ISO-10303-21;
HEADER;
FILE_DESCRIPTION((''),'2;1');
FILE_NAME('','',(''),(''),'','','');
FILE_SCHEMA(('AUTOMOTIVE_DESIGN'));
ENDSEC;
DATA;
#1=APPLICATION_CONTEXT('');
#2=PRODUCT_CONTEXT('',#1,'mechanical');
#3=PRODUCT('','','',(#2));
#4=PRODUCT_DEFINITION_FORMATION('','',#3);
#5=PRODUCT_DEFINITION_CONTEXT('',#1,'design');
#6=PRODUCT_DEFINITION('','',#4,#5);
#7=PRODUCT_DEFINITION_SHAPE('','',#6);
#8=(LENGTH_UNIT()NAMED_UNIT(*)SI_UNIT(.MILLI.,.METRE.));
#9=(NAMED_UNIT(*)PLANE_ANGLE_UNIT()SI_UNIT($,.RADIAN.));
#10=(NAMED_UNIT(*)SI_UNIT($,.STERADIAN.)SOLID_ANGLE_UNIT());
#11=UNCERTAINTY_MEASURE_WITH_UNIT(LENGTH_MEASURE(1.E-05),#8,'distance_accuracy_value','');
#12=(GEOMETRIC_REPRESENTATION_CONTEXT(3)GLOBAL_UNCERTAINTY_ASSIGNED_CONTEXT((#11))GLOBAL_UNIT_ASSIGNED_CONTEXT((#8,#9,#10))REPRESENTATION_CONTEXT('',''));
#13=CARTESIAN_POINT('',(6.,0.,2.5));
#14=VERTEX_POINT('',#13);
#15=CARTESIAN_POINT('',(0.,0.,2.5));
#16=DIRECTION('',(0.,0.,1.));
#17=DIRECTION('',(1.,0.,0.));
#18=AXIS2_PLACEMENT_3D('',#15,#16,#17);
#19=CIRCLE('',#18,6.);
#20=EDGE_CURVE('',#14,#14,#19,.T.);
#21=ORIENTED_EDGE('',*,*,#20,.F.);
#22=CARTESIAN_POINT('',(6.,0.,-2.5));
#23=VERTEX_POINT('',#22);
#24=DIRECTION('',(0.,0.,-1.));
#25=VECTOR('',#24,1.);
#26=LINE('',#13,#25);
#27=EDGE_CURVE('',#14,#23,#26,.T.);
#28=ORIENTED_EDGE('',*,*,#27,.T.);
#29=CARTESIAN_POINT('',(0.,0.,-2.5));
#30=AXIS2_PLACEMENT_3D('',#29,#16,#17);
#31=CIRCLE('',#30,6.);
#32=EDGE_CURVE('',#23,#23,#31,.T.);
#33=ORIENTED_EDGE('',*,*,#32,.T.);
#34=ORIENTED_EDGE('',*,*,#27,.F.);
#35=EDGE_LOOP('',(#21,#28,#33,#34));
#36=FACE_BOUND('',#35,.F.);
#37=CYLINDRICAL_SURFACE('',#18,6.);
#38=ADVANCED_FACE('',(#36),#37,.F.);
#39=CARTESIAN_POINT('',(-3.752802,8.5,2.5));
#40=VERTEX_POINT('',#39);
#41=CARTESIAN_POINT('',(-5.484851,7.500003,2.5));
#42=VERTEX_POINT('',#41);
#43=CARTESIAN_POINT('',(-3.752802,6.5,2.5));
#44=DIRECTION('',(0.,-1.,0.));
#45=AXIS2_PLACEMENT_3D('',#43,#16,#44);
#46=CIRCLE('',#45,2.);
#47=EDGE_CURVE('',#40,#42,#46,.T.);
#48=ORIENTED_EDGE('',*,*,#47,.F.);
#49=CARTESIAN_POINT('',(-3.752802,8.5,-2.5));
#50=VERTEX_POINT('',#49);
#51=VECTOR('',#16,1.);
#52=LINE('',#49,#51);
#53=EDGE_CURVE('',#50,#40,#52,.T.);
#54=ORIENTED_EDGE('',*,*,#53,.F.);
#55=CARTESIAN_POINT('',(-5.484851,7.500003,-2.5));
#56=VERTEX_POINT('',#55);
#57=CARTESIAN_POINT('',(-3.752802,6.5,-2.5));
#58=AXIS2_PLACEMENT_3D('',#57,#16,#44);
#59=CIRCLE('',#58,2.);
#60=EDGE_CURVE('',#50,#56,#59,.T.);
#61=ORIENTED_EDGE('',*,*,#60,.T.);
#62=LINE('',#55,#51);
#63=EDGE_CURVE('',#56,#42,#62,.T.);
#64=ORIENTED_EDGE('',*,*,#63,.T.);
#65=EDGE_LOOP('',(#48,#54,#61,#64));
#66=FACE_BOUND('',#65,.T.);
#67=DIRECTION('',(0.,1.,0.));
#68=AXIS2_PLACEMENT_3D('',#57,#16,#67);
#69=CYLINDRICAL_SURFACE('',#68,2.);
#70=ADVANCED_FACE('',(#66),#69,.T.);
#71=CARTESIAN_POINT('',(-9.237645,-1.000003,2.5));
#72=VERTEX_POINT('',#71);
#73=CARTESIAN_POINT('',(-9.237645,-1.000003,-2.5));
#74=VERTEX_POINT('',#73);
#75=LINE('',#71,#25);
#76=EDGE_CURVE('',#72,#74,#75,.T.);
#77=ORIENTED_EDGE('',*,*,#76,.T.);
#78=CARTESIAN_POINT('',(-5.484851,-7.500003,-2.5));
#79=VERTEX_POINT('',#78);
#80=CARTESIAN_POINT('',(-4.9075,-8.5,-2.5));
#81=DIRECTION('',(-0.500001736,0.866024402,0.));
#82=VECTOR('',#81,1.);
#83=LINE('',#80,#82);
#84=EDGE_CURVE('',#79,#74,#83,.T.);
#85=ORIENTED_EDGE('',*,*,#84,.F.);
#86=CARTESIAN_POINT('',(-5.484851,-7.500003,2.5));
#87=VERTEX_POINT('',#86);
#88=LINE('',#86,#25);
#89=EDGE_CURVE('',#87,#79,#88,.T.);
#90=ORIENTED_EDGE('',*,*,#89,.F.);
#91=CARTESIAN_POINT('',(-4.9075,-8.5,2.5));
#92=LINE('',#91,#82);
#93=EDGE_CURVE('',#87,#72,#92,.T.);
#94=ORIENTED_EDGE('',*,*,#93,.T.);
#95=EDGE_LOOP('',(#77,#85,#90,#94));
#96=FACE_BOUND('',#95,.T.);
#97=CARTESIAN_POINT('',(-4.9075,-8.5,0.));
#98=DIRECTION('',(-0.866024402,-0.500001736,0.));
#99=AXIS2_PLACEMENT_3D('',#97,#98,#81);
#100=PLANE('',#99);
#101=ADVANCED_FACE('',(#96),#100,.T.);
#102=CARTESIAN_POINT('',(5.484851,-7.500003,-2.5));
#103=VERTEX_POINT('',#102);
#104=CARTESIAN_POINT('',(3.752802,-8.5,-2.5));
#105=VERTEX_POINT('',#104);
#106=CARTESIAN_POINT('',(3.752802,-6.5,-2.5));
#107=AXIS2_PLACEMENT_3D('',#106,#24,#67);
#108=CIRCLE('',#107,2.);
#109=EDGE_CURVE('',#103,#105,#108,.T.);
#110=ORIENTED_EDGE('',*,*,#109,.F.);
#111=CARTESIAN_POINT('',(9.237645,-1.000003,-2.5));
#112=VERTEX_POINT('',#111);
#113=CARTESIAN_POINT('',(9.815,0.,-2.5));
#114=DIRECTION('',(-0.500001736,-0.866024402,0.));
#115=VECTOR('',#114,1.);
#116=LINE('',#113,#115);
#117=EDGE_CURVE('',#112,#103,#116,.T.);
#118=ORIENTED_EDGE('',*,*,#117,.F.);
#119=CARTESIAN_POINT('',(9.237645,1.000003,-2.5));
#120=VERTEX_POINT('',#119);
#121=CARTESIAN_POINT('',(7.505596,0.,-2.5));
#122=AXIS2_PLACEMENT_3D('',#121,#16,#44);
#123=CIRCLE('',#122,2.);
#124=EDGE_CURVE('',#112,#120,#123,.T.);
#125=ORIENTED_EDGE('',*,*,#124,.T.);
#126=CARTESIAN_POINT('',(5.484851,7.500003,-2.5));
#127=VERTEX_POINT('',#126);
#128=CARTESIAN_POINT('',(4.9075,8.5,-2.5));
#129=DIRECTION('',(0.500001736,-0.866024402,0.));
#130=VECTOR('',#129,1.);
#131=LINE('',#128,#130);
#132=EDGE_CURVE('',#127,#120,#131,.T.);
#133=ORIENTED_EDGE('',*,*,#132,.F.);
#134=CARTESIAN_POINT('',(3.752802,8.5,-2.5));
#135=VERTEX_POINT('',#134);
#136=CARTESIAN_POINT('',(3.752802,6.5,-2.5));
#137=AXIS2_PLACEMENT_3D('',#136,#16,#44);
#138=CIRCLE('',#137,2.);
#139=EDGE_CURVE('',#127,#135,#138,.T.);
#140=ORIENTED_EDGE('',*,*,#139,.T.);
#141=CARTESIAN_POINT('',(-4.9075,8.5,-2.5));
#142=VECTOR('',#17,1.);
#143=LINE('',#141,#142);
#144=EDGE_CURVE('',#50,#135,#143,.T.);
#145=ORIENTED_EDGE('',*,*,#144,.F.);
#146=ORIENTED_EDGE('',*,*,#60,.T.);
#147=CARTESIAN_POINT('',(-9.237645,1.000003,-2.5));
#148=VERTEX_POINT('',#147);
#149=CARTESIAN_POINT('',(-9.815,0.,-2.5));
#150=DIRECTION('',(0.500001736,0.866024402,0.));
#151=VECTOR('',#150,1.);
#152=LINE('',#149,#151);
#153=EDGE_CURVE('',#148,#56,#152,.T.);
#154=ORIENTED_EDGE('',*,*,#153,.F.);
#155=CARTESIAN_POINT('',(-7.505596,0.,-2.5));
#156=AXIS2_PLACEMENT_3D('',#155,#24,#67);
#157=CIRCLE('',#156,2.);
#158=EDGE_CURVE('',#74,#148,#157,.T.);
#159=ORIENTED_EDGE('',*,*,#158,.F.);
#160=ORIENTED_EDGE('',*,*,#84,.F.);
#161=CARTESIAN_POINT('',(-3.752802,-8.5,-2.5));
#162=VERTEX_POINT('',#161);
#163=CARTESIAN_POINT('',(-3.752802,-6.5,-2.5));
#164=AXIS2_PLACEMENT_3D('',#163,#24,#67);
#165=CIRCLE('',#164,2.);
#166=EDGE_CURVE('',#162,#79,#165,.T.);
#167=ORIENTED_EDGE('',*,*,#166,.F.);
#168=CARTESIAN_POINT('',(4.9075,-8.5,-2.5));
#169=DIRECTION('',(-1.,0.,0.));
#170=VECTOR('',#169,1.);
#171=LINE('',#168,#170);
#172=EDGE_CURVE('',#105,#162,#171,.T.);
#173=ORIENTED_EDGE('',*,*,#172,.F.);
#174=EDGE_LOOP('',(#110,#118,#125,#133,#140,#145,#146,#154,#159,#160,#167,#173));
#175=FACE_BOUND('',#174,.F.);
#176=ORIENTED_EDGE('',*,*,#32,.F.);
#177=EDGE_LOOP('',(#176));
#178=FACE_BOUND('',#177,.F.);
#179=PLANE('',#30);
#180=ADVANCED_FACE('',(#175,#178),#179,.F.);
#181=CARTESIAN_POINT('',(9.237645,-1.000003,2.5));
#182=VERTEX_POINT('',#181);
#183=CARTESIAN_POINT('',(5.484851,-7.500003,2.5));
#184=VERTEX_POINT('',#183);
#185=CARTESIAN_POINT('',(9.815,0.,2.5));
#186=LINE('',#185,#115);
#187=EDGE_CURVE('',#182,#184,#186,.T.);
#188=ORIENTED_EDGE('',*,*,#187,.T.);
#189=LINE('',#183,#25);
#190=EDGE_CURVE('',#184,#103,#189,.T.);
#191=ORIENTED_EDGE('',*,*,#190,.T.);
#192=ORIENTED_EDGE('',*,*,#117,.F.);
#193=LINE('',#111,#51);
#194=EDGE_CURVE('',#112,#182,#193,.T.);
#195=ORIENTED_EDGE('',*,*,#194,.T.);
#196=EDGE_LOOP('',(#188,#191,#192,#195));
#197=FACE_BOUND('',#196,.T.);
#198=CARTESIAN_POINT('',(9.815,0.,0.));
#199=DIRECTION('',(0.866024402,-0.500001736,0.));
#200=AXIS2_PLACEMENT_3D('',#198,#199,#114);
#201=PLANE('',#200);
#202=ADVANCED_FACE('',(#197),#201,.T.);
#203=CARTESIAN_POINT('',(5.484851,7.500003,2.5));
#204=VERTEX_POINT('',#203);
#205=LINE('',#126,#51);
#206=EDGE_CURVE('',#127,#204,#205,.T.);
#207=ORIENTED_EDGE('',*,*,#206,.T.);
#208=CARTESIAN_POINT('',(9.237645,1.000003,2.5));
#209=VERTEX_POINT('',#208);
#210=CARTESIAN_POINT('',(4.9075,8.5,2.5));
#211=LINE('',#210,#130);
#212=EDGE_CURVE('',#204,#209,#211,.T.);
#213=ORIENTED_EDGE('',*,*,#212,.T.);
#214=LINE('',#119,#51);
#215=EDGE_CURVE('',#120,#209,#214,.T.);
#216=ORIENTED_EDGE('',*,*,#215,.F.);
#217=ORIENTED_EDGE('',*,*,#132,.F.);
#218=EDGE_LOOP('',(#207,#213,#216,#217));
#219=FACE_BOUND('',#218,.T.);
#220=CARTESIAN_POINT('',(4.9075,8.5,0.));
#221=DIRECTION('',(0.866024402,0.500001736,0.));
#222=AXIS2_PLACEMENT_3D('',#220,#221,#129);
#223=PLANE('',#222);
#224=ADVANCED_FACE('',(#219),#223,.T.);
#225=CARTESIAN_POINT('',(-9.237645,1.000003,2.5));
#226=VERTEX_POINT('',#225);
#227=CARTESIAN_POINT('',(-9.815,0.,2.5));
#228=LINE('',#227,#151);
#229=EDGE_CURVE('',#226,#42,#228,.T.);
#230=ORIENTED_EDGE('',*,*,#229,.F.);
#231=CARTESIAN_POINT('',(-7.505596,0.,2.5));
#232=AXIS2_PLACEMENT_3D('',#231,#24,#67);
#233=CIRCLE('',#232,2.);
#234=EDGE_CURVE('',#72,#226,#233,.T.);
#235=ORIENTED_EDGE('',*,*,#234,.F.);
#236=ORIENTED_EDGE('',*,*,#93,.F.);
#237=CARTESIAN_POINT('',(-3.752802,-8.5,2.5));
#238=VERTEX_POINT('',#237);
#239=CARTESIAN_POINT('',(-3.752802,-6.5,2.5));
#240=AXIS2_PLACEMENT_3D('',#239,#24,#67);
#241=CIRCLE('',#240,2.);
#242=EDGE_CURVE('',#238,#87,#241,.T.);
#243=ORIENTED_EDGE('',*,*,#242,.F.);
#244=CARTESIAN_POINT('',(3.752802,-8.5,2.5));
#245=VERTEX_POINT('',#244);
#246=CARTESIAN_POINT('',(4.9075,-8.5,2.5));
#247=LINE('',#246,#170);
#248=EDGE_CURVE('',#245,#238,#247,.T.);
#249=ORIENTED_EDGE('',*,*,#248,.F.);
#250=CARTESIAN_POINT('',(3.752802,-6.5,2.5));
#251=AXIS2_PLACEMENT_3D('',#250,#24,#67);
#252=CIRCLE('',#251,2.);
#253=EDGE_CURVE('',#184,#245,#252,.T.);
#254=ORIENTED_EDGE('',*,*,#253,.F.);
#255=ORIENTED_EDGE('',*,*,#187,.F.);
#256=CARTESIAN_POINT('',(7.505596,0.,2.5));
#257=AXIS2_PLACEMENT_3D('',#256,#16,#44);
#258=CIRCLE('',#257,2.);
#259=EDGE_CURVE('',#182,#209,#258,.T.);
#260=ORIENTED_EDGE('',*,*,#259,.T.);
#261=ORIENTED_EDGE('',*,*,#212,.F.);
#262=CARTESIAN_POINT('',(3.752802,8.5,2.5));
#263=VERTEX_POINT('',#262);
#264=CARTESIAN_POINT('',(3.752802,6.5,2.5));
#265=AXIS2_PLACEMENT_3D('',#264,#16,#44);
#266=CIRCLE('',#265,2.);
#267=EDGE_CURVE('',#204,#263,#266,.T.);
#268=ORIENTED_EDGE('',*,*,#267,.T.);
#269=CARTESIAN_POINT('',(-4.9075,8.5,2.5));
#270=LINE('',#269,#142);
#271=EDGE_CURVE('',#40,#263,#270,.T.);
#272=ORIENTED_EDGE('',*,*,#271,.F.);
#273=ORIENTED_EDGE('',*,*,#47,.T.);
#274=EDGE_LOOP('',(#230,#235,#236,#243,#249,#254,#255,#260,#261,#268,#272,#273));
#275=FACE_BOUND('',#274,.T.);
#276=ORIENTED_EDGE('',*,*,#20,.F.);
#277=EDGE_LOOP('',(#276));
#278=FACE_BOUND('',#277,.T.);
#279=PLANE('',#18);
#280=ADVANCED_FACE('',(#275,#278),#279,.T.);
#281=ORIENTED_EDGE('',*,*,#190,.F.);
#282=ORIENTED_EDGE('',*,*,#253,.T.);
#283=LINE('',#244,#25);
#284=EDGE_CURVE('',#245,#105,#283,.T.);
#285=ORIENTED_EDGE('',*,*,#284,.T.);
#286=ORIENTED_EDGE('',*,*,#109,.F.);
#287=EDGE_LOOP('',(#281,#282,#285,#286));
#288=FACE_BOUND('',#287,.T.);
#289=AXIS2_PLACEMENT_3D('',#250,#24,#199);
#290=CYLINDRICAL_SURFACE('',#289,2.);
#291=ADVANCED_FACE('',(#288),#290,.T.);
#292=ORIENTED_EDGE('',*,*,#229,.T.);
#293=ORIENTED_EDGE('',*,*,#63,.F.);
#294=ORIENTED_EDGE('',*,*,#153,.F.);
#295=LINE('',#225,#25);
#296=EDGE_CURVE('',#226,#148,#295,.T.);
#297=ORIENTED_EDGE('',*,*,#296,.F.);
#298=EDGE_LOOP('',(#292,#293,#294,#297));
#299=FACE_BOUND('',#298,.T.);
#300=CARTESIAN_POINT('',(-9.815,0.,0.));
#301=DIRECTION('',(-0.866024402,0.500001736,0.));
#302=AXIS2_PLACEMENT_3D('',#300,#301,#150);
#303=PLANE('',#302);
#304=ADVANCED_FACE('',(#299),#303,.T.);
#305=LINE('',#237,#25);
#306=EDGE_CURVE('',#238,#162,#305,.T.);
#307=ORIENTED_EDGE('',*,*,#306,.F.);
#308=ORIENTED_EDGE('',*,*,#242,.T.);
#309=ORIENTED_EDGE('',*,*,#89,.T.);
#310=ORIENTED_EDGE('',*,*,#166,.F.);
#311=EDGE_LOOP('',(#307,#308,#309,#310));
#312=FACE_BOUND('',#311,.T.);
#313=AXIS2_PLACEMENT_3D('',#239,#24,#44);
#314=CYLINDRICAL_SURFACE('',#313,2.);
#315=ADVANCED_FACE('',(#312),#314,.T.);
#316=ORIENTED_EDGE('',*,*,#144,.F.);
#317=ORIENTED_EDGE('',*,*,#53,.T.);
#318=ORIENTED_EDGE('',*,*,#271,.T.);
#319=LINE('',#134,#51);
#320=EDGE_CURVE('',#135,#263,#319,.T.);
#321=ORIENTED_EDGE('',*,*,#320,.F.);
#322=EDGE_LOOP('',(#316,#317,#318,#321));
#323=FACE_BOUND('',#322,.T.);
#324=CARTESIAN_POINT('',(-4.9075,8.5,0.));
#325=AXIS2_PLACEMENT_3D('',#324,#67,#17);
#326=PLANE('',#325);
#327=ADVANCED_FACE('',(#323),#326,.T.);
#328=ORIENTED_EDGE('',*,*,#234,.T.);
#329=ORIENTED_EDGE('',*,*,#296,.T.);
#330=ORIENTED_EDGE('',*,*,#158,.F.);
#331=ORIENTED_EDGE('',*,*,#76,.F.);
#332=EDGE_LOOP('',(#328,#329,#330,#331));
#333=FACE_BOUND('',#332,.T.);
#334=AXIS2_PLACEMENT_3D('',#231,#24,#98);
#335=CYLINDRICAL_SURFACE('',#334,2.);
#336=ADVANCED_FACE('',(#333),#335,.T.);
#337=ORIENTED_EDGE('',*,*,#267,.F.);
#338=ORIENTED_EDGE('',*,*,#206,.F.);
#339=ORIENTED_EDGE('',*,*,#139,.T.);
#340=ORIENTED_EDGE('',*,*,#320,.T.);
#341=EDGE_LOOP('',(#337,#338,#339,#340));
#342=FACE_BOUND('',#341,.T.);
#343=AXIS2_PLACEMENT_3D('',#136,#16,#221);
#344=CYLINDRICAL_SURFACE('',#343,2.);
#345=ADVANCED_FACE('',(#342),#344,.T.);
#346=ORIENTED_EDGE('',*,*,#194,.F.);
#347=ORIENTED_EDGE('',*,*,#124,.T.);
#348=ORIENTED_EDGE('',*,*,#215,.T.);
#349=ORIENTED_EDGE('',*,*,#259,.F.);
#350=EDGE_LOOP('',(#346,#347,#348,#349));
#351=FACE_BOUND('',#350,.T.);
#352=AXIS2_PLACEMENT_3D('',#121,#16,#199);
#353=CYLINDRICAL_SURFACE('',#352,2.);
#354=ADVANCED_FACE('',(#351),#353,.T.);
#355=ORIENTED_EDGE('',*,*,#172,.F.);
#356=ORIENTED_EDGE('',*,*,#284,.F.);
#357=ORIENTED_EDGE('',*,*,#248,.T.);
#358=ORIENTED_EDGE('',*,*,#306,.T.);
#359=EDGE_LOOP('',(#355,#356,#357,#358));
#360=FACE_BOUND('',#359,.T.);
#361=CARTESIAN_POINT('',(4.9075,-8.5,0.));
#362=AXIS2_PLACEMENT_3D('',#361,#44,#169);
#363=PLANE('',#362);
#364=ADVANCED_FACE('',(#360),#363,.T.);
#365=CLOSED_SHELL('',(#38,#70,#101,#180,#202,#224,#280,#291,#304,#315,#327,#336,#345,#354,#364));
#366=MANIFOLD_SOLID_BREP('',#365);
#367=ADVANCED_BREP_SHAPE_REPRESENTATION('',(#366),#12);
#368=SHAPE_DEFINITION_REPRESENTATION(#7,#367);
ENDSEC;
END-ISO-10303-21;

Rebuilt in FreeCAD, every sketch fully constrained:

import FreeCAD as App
import Part
import Sketcher

V = App.Vector
Q = App.Units.Quantity


def edges_at(feature, points):
    """Names of the edges that pass closest to the given points."""
    edges = feature.Shape.Edges
    near = lambda p: min(range(len(edges)), key=lambda i: edges[i].distToShape(Part.Vertex(*p))[0])
    return sorted({f"Edge{near(p) + 1}" for p in points})


def add_polygon(sketch, points):
    """Adds a closed chain of lines whose ends are joined by coincident constraints."""
    first, n = sketch.GeometryCount, len(points)
    for a, b in zip(points, points[1:] + points[:1]):
        sketch.addGeometry(Part.LineSegment(App.Vector(*a, 0), App.Vector(*b, 0)), False)
    for i in range(n):
        sketch.addConstraint(Sketcher.Constraint("Coincident", first + i, 2, first + (i + 1) % n, 1))

doc = App.newDocument("Part")
body = doc.addObject("PartDesign::Body", "Body")

# Sketch on XY plane
sketch1 = body.newObject("Sketcher::SketchObject", "Sketch")
sketch1.AttachmentSupport = (doc.getObject("XY_Plane"), [""])
sketch1.MapMode = "FlatFace"
add_polygon(sketch1, [(4.9075, -8.5), (9.815, 0), (4.9075, 8.5), (-4.9075, 8.5), (-9.815, 0), (-4.9075, -8.5)])  # lines 0-5
sketch1.addConstraint([
    Sketcher.Constraint("Horizontal", 2),
    Sketcher.Constraint("Horizontal", 5),
    Sketcher.Constraint("Symmetric", 0, 2, 3, 2, -1, 1),
    Sketcher.Constraint("Symmetric", 1, 2, 4, 2, -1, 1),
    Sketcher.Constraint("PointOnObject", 0, 2, -1),
    Sketcher.Constraint("Parallel", 0, 3),
    Sketcher.Constraint("Vertical", 2, 2, 4, 2),
    Sketcher.Constraint("DistanceY", 4, 2, 2, 2, Q("17 mm")),
    Sketcher.Constraint("Angle", 0, Q("60 deg")),
    Sketcher.Constraint("DistanceX", 2, 2, 2, 1, Q("9.815 mm")),
])
pad1 = body.newObject("PartDesign::Pad", "Pad")
pad1.Profile = sketch1
pad1.Length = 5
pad1.Midplane = True

# Sketch on XY plane
sketch2 = body.newObject("Sketcher::SketchObject", "Sketch001")
sketch2.AttachmentSupport = (doc.getObject("XY_Plane"), [""])
sketch2.MapMode = "FlatFace"
sketch2.AttachmentOffset = App.Placement(V(0, 0, 2.5), App.Rotation())
sketch2.addGeometry(Part.Circle(V(0, 0, 0), V(0, 0, 1), 6), False)
sketch2.addConstraint([
    Sketcher.Constraint("Coincident", 0, 3, -1, 1),
    Sketcher.Constraint("Diameter", 0, Q("12 mm")),
])
pocket1 = body.newObject("PartDesign::Pocket", "Pocket")
pocket1.Profile = sketch2
pocket1.Type = "ThroughAll"
doc.recompute()

fillet = body.newObject("PartDesign::Fillet", "Fillet")
fillet.Base = (pocket1, edges_at(pocket1, [
    (4.907, -8.5, 0),
    (-4.907, -8.5, 0),
    (-9.815, 0, 0),
    (-4.907, 8.5, 0),
    (4.907, 8.5, 0),
    (9.815, 0, 0),
]))
fillet.Radius = 2

doc.recompute()
